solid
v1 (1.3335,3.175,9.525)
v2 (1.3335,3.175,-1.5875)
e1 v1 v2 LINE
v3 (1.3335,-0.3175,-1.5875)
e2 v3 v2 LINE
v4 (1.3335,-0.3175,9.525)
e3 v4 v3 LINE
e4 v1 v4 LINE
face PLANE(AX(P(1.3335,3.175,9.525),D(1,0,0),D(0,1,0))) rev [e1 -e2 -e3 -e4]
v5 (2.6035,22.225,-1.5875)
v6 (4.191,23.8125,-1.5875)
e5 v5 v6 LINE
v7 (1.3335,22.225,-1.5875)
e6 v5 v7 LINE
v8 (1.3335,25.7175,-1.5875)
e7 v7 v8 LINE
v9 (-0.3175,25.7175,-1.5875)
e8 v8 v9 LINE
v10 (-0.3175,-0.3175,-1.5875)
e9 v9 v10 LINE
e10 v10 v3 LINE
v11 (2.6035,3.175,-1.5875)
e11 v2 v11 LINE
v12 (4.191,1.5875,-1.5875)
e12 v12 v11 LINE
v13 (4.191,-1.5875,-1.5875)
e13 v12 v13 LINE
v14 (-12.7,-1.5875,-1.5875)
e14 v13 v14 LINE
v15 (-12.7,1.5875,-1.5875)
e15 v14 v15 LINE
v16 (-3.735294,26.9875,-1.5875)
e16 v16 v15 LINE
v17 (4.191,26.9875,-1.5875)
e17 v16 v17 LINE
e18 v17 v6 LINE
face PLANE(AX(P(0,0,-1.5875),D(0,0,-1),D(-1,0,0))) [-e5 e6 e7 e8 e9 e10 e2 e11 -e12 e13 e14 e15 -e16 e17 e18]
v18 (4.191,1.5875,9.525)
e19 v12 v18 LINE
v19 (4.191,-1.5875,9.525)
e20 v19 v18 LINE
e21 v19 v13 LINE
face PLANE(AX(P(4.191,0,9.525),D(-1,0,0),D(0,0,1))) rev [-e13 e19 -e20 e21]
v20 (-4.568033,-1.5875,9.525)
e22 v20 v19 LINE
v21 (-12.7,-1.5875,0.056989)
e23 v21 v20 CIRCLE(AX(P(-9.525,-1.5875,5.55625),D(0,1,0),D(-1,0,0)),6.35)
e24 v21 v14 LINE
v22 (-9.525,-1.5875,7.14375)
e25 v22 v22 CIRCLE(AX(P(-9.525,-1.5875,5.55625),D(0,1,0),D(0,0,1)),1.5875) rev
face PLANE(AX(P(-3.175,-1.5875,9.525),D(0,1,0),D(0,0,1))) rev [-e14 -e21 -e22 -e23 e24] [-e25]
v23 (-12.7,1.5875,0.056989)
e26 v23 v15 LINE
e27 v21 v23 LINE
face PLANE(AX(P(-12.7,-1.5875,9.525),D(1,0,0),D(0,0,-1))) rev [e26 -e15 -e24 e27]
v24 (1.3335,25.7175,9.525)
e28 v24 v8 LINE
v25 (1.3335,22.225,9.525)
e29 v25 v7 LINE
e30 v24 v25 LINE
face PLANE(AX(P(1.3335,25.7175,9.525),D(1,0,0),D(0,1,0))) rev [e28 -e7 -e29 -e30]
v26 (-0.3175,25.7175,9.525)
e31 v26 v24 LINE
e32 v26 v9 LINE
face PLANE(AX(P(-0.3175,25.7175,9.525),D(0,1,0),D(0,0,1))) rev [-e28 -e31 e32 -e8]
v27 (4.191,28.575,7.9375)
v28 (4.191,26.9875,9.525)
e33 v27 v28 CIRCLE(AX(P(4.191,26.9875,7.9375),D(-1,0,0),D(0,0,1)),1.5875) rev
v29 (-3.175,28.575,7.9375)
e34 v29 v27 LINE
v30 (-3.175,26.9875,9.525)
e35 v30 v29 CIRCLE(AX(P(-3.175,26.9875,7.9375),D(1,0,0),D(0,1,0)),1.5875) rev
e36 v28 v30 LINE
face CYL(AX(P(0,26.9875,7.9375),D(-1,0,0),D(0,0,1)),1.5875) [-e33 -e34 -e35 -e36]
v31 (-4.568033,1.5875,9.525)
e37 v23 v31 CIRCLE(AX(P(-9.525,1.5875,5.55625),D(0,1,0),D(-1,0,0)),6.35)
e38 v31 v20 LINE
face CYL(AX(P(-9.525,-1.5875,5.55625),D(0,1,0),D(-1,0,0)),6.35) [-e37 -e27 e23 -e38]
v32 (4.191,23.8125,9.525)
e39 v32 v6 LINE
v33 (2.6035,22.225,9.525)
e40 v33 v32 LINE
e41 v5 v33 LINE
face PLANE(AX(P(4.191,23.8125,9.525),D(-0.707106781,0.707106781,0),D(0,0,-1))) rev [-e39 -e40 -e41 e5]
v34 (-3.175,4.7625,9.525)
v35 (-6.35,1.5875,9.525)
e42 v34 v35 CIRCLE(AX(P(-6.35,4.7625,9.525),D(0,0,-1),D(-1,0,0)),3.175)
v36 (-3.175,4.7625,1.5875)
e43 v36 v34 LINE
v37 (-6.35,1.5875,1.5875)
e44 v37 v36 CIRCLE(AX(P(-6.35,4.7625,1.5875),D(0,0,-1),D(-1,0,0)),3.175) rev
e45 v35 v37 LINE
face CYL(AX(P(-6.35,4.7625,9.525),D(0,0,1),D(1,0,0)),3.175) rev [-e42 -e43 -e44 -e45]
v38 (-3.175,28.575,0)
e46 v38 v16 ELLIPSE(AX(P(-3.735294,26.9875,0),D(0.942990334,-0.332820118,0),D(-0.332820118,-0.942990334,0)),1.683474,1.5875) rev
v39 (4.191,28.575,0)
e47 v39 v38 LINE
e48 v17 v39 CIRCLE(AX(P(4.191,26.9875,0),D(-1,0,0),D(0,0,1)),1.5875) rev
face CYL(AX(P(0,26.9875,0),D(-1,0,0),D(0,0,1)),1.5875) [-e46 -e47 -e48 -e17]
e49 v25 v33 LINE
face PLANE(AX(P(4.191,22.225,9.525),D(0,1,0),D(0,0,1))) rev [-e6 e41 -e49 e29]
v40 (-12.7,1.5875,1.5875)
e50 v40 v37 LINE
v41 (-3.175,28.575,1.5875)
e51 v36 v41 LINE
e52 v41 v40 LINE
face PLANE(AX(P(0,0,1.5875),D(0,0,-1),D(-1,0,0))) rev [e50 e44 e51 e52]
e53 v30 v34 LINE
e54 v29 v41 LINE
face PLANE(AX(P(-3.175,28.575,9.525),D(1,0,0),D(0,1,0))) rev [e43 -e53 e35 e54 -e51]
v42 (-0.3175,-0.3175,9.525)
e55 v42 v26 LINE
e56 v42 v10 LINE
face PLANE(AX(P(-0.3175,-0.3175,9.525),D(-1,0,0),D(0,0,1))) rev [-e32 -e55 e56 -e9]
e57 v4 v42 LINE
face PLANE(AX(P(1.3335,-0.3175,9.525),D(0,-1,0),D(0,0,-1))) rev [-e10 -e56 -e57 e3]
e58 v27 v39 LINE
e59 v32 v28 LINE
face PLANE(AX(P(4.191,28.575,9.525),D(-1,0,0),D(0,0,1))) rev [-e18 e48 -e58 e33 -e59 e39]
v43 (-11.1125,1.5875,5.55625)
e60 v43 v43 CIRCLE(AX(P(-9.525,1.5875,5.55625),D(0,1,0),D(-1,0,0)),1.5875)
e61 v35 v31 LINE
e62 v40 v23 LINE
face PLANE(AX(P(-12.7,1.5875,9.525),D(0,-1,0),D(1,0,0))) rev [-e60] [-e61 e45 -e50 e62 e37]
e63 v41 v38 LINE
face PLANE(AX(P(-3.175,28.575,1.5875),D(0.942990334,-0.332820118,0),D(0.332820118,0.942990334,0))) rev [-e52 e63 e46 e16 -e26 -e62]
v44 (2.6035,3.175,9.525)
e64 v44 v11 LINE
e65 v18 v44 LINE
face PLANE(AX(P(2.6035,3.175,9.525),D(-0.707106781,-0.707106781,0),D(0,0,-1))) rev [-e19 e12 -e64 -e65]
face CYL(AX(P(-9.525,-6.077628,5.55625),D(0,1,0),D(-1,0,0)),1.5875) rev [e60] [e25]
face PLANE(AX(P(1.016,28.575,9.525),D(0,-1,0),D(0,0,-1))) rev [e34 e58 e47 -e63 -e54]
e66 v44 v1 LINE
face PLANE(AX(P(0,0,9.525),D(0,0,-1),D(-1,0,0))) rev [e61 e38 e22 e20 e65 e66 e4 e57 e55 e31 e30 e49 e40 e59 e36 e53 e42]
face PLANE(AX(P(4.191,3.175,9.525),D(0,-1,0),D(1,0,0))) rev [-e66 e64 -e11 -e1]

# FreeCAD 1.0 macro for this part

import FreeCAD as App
import Part
import Sketcher
Q = App.Units.Quantity


def edges_at(feature, points):
    """Names of the edges that pass closest to the given points."""
    edges = feature.Shape.Edges
    near = lambda p: min(range(len(edges)), key=lambda i: edges[i].distToShape(Part.Vertex(*p))[0])
    return sorted({f"Edge{near(p) + 1}" for p in points})


def add_polygon(sketch, points):
    """Adds a closed chain of lines whose ends are joined by coincident constraints."""
    first, n = sketch.GeometryCount, len(points)
    for a, b in zip(points, points[1:] + points[:1]):
        sketch.addGeometry(Part.LineSegment(App.Vector(*a, 0), App.Vector(*b, 0)), False)
    for i in range(n):
        sketch.addConstraint(Sketcher.Constraint("Coincident", first + i, 2, first + (i + 1) % n, 1))

doc = App.newDocument("Part")
body = doc.addObject("PartDesign::Body", "Body")

# Sketch on XY plane
sketch1 = doc.addObject("Sketcher::SketchObject", "Sketch")
body.addObject(sketch1)
sketch1.AttachmentSupport = (doc.XY_Plane, [""])
sketch1.MapMode = "FlatFace"
add_polygon(sketch1, [(-0.3175, -0.3175), (-0.3175, 25.7175), (1.3335, 25.7175), (1.3335, 22.225), (4.191, 22.225), (4.191, 28.575), (-3.175, 28.575), (-3.175, 1.5875), (-12.7, 1.5875), (-12.7, -1.5875), (4.191, -1.5875), (4.191, 3.175), (1.3335, 3.175), (1.3335, -0.3175)])  # lines 0-13
sketch1.addConstraint([
    Sketcher.Constraint("Vertical", 0),
    Sketcher.Constraint("Horizontal", 1),
    Sketcher.Constraint("Vertical", 2),
    Sketcher.Constraint("Horizontal", 3),
    Sketcher.Constraint("Vertical", 4),
    Sketcher.Constraint("Horizontal", 5),
    Sketcher.Constraint("Vertical", 6),
    Sketcher.Constraint("Horizontal", 7),
    Sketcher.Constraint("Vertical", 8),
    Sketcher.Constraint("Horizontal", 9),
    Sketcher.Constraint("Vertical", 10),
    Sketcher.Constraint("Horizontal", 11),
    Sketcher.Constraint("Vertical", 12),
    Sketcher.Constraint("Horizontal", 13),
    Sketcher.Constraint("Vertical", 4, 2, 9, 2),
    Sketcher.Constraint("Vertical", 2, 2, 11, 2),
    Sketcher.Constraint("Equal", 2, 12),
    Sketcher.Constraint("DistanceX", 5, 2, 5, 1, Q("0.29 in")),
    Sketcher.Constraint("DistanceY", 4, 1, 4, 2, Q("0.25 in")),
    Sketcher.Constraint("DistanceX", 7, 2, -1, 1, Q("0.5 in")),
    Sketcher.Constraint("DistanceX", 1, 1, 1, 2, Q("0.065 in")),
    Sketcher.Constraint("DistanceX", 7, 2, 7, 1, Q("0.375 in")),
    Sketcher.Constraint("DistanceY", 0, 1, 0, 2, Q("1.025 in")),
    Sketcher.Constraint("DistanceY", 6, 2, 6, 1, Q("1.0625 in")),
    Sketcher.Constraint("DistanceY", 8, 2, 8, 1, Q("0.125 in")),
    Sketcher.Constraint("DistanceY", 10, 1, 10, 2, Q("0.1875 in")),
    Sketcher.Constraint("DistanceX", 3, 1, 3, 2, Q("0.1125 in")),
    Sketcher.Constraint("DistanceY", -1, 1, 2, 2, Q("0.875 in")),
])
pad1 = doc.addObject("PartDesign::Pad", "Pad")
body.addObject(pad1)
pad1.Profile = sketch1
pad1.Length = Q("0.75 in")
pad1.Midplane = True
doc.recompute()

fillet = doc.addObject("PartDesign::Fillet", "Fillet")
body.addObject(fillet)
fillet.Base = (pad1, edges_at(pad1, [(-3.175, 1.587, 0)]))
fillet.Radius = Q("0.125 in")

# Sketch on XY plane
sketch2 = doc.addObject("Sketcher::SketchObject", "Sketch001")
body.addObject(sketch2)
sketch2.AttachmentSupport = (doc.XY_Plane, [""])
sketch2.MapMode = "FlatFace"
add_polygon(sketch2, [(-3.175, 28.575), (-12.7, 1.5875), (-3.175, 1.5875)])  # lines 0-2
sketch2.addConstraint([
    Sketcher.Constraint("Horizontal", 1),
    Sketcher.Constraint("Vertical", 2),
    Sketcher.Constraint("DistanceX", 0, 2, -1, 1, Q("0.5 in")),
    Sketcher.Constraint("DistanceX", 1, 1, 1, 2, Q("0.375 in")),
    Sketcher.Constraint("DistanceY", 2, 1, 2, 2, Q("1.0625 in")),
    Sketcher.Constraint("DistanceY", -1, 1, 0, 2, Q("0.0625 in")),
])
pad2 = doc.addObject("PartDesign::Pad", "Pad001")
body.addObject(pad2)
pad2.Profile = sketch2
pad2.Length = Q("0.125 in")
pad2.Midplane = True

# Sketch on XZ plane
sketch3 = doc.addObject("Sketcher::SketchObject", "Sketch002")
body.addObject(sketch3)
sketch3.AttachmentSupport = (doc.XZ_Plane, [""])
sketch3.MapMode = "FlatFace"
sketch3.AttachmentOffset = App.Placement(App.Vector(0, 0, -0.0625 * 25.4), App.Rotation())
sketch3.addGeometry([
    Part.Circle(App.Vector(-9.525, 5.55625, 0), App.Vector(0, 0, 1), 1.5875),
    Part.Circle(App.Vector(-9.525, -5.55625, 0), App.Vector(0, 0, 1), 1.5875),
], False)
sketch3.addConstraint([
    Sketcher.Constraint("Equal", 0, 1),
    Sketcher.Constraint("Symmetric", 0, 3, 1, 3, -1),
    Sketcher.Constraint("Diameter", 0, Q("0.125 in")),
    Sketcher.Constraint("DistanceX", 0, 3, -1, 1, Q("0.375 in")),
    Sketcher.Constraint("DistanceY", -1, 1, 0, 3, Q("0.21875 in")),
])
pocket1 = doc.addObject("PartDesign::Pocket", "Pocket")
body.addObject(pocket1)
pocket1.Profile = sketch3
pocket1.Length = Q("0.125 in")
pocket1.Reversed = True
doc.recompute()

chamfer = doc.addObject("PartDesign::Chamfer", "Chamfer")
body.addObject(chamfer)
chamfer.Base = (pocket1, edges_at(pocket1, [(4.191, 3.175, 0), (4.191, 22.225, 0)]))
chamfer.Size = Q("0.0625 in")
doc.recompute()

fillet2 = doc.addObject("PartDesign::Fillet", "Fillet001")
body.addObject(fillet2)
fillet2.Base = (chamfer, edges_at(chamfer, [(0.508, 28.575, -9.525), (0.508, 28.575, 9.525)]))
fillet2.Radius = Q("0.0625 in")

# Sketch on XY plane
sketch4 = doc.addObject("Sketcher::SketchObject", "Sketch003")
body.addObject(sketch4)
sketch4.AttachmentSupport = (doc.XY_Plane, [""])
sketch4.MapMode = "FlatFace"
sketch4.AttachmentOffset = App.Placement(App.Vector(0, 0, -0.0625 * 25.4), App.Rotation())
add_polygon(sketch4, [(-12.7, 1.5875), (-3.175, 28.575), (4.191, 28.575), (4.191, -1.5875), (-12.7, -1.5875)])  # lines 0-4
sketch4.addConstraint([
    Sketcher.Constraint("Horizontal", 1),
    Sketcher.Constraint("Vertical", 2),
    Sketcher.Constraint("Horizontal", 3),
    Sketcher.Constraint("Vertical", 4),
    Sketcher.Constraint("DistanceX", 1, 1, 1, 2, Q("0.29 in")),
    Sketcher.Constraint("DistanceX", 3, 2, -1, 1, Q("0.5 in")),
    Sketcher.Constraint("DistanceX", 3, 2, 3, 1, Q("0.665 in")),
    Sketcher.Constraint("DistanceY", 2, 2, 2, 1, Q("1.1875 in")),
    Sketcher.Constraint("DistanceY", 4, 1, 4, 2, Q("0.125 in")),
    Sketcher.Constraint("DistanceY", -1, 1, 0, 2, Q("1.125 in")),
])
pocket2 = doc.addObject("PartDesign::Pocket", "Pocket001")
body.addObject(pocket2)
pocket2.Profile = sketch4
pocket2.Length = Q("0.5 in")
doc.recompute()

fillet3 = doc.addObject("PartDesign::Fillet", "Fillet002")
body.addObject(fillet3)
fillet3.Base = (pocket2, edges_at(pocket2, [(0.508, 28.575, -1.587)]))
fillet3.Radius = Q("0.0625 in")

# Sketch on XZ plane
sketch5 = doc.addObject("Sketcher::SketchObject", "Sketch004")
body.addObject(sketch5)
sketch5.AttachmentSupport = (doc.XZ_Plane, [""])
sketch5.MapMode = "FlatFace"
sketch5.AttachmentOffset = App.Placement(App.Vector(0, 0, -0.0625 * 25.4), App.Rotation())
sketch5.addGeometry([
    Part.Circle(App.Vector(-9.525, 5.55625, 0), App.Vector(0, 0, 1), 6.35),
    Part.Circle(App.Vector(-9.525, 5.55625, 0), App.Vector(0, 0, 1), 1.5875),
], False)
sketch5.addConstraint([
    Sketcher.Constraint("Coincident", 1, 3, 0, 3),
    Sketcher.Constraint("Diameter", 0, Q("0.5 in")),
    Sketcher.Constraint("Diameter", 1, Q("0.125 in")),
    Sketcher.Constraint("DistanceX", 0, 3, -1, 1, Q("0.375 in")),
    Sketcher.Constraint("DistanceY", -1, 1, 0, 3, Q("0.21875 in")),
])
pad3 = doc.addObject("PartDesign::Pad", "Pad002")
body.addObject(pad3)
pad3.Profile = sketch5
pad3.Length = Q("0.125 in")

doc.recompute()
